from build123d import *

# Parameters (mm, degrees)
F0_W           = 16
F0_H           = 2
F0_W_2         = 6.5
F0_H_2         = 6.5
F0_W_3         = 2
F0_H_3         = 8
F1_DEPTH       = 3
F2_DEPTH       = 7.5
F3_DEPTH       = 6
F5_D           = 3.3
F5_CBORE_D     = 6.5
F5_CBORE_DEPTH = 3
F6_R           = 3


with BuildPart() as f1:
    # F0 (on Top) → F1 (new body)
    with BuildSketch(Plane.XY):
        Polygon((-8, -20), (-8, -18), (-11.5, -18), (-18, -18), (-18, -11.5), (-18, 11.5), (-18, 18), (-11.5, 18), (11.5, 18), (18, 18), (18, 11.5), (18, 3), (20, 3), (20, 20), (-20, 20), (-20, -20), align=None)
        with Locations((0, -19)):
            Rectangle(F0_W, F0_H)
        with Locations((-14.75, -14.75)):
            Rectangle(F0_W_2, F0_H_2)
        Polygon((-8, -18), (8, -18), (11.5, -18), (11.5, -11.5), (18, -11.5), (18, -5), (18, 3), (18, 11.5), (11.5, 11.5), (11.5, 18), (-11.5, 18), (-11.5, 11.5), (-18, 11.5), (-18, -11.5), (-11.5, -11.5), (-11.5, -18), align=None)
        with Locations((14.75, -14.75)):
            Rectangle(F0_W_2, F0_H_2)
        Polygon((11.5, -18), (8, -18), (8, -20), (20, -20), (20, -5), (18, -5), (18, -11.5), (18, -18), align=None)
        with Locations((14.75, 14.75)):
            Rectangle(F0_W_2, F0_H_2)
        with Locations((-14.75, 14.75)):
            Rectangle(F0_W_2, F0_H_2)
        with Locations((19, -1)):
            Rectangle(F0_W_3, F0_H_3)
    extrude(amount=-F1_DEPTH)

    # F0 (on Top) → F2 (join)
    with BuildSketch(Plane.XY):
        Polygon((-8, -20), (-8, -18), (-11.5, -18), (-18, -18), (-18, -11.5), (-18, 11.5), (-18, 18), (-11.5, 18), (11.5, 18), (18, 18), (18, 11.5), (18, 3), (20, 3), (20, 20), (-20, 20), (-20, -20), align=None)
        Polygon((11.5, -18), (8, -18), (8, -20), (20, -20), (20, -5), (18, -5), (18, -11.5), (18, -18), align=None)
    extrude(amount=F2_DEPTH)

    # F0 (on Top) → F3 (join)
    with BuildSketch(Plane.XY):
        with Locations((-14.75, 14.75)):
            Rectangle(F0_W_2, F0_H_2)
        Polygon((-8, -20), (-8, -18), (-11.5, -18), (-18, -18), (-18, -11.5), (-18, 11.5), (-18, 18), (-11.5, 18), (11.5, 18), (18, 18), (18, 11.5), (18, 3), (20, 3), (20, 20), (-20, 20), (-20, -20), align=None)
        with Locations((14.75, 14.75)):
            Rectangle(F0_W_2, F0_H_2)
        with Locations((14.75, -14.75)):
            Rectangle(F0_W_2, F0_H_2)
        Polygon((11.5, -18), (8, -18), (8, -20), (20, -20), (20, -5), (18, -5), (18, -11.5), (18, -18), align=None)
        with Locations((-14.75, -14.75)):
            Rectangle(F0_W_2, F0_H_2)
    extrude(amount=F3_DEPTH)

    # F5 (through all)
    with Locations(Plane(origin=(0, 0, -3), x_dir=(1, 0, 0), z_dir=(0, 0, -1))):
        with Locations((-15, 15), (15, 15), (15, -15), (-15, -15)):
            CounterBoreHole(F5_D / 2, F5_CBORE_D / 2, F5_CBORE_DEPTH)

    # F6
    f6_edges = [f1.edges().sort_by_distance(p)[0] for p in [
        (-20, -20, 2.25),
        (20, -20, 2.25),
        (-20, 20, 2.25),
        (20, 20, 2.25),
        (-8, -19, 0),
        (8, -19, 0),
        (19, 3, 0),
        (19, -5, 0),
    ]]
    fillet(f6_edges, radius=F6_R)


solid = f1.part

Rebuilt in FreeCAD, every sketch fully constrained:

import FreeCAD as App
import Part
import Sketcher


def edges_at(feature, points):
    """Names of the edges that pass closest to the given points."""
    edges = feature.Shape.Edges
    near = lambda p: min(range(len(edges)), key=lambda i: edges[i].distToShape(Part.Vertex(*p))[0])
    return sorted({f"Edge{near(p) + 1}" for p in points})


def add_polygon(sketch, points):
    """Adds a closed chain of lines whose ends are joined by coincident constraints."""
    first, n = sketch.GeometryCount, len(points)
    for a, b in zip(points, points[1:] + points[:1]):
        sketch.addGeometry(Part.LineSegment(App.Vector(*a, 0), App.Vector(*b, 0)), False)
    for i in range(n):
        sketch.addConstraint(Sketcher.Constraint("Coincident", first + i, 2, first + (i + 1) % n, 1))

doc = App.newDocument("Part")
body = doc.addObject("PartDesign::Body", "Body")

sketch1 = body.newObject("Sketcher::SketchObject", "Sketch")
sketch1.AttachmentSupport = (doc.getObject("XY_Plane"), [""])
sketch1.MapMode = "FlatFace"
add_polygon(sketch1, [(20, 20), (-20, 20), (-20, -20), (20, -20)])
sketch1.addConstraint([
    Sketcher.Constraint("Horizontal", 0),
    Sketcher.Constraint("Vertical", 1),
    Sketcher.Constraint("Horizontal", 2),
    Sketcher.Constraint("Vertical", 3),
    Sketcher.Constraint("Symmetric", 0, 2, 2, 2, -1, 1),
    Sketcher.Constraint("Equal", 2, 1),
    Sketcher.Constraint("DistanceX", 0, 2, 0, 1, 40.0),
])
pad1 = body.newObject("PartDesign::Pad", "Pad")
pad1.Profile = sketch1
pad1.Length = 3
pad1.Reversed = True

sketch2 = body.newObject("Sketcher::SketchObject", "Sketch001")
sketch2.AttachmentSupport = (doc.getObject("XY_Plane"), [""])
sketch2.MapMode = "FlatFace"
add_polygon(sketch2, [(-8, -20), (-8, -18), (-18, -18), (-18, 18), (18, 18), (18, 3), (20, 3), (20, 20), (-20, 20), (-20, -20)])
add_polygon(sketch2, [(8, -18), (8, -20), (20, -20), (20, -5), (18, -5), (18, -18)])
sketch2.addConstraint([
    Sketcher.Constraint("Vertical", 0),
    Sketcher.Constraint("Horizontal", 1),
    Sketcher.Constraint("Vertical", 2),
    Sketcher.Constraint("Horizontal", 3),
    Sketcher.Constraint("Vertical", 4),
    Sketcher.Constraint("Horizontal", 5),
    Sketcher.Constraint("Vertical", 6),
    Sketcher.Constraint("Horizontal", 7),
    Sketcher.Constraint("Vertical", 8),
    Sketcher.Constraint("Horizontal", 9),
    Sketcher.Constraint("Vertical", 10),
    Sketcher.Constraint("Horizontal", 11),
    Sketcher.Constraint("Vertical", 12),
    Sketcher.Constraint("Horizontal", 13),
    Sketcher.Constraint("Vertical", 14),
    Sketcher.Constraint("Horizontal", 15),
    Sketcher.Constraint("Symmetric", 1, 2, 3, 2, -1, 1),
    Sketcher.Constraint("Symmetric", 6, 2, 8, 2, -1, 1),
    Sketcher.Constraint("Symmetric", 7, 2, 11, 2, -1, 1),
    Sketcher.Constraint("Symmetric", 2, 2, 14, 2, -1, 1),
    Sketcher.Constraint("Equal", 9, 11),
    Sketcher.Constraint("Equal", 13, 0),
    Sketcher.Constraint("Equal", 3, 2),
    Sketcher.Constraint("Equal", 4, 12),
    Sketcher.Constraint("DistanceX", 1, 2, 1, 1, 10.0),
    Sketcher.Constraint("DistanceX", 3, 1, 3, 2, 36.0),
    Sketcher.Constraint("DistanceX", 5, 1, 5, 2, 2.0),
    Sketcher.Constraint("DistanceY", 4, 2, 4, 1, 15.0),
])
pad2 = body.newObject("PartDesign::Pad", "Pad001")
pad2.Profile = sketch2
pad2.Length = 7.5

sketch3 = body.newObject("Sketcher::SketchObject", "Sketch002")
sketch3.AttachmentSupport = (doc.getObject("XY_Plane"), [""])
sketch3.MapMode = "FlatFace"
add_polygon(sketch3, [(-18, 11.5), (-11.5, 11.5), (-11.5, 18), (11.5, 18), (11.5, 11.5), (18, 11.5), (18, 3), (20, 3), (20, 20), (-20, 20), (-20, -20), (-8, -20), (-8, -18), (-11.5, -18), (-11.5, -11.5), (-18, -11.5)])
add_polygon(sketch3, [(11.5, -11.5), (11.5, -18), (8, -18), (8, -20), (20, -20), (20, -5), (18, -5), (18, -11.5)])
sketch3.addConstraint([
    Sketcher.Constraint("Horizontal", 0),
    Sketcher.Constraint("Vertical", 1),
    Sketcher.Constraint("Horizontal", 2),
    Sketcher.Constraint("Vertical", 3),
    Sketcher.Constraint("Horizontal", 4),
    Sketcher.Constraint("Vertical", 5),
    Sketcher.Constraint("Horizontal", 6),
    Sketcher.Constraint("Vertical", 7),
    Sketcher.Constraint("Horizontal", 8),
    Sketcher.Constraint("Vertical", 9),
    Sketcher.Constraint("Horizontal", 10),
    Sketcher.Constraint("Vertical", 11),
    Sketcher.Constraint("Horizontal", 12),
    Sketcher.Constraint("Vertical", 13),
    Sketcher.Constraint("Horizontal", 14),
    Sketcher.Constraint("Vertical", 15),
    Sketcher.Constraint("Vertical", 16),
    Sketcher.Constraint("Horizontal", 17),
    Sketcher.Constraint("Vertical", 18),
    Sketcher.Constraint("Horizontal", 19),
    Sketcher.Constraint("Vertical", 20),
    Sketcher.Constraint("Horizontal", 21),
    Sketcher.Constraint("Vertical", 22),
    Sketcher.Constraint("Horizontal", 23),
    Sketcher.Constraint("Symmetric", 7, 2, 9, 2, -1, 1),
    Sketcher.Constraint("Symmetric", 2, 2, 12, 2, -1, 1),
    Sketcher.Constraint("Symmetric", 4, 2, 14, 2, -1, 1),
    Sketcher.Constraint("Symmetric", 1, 2, 16, 2, -1, 1),
    Sketcher.Constraint("Symmetric", 8, 2, 19, 2, -1, 1),
    Sketcher.Constraint("Symmetric", 15, 2, 22, 2, -1, 1),
    Sketcher.Constraint("Symmetric", 0, 2, 3, 2, -2),
    Sketcher.Constraint("Equal", 12, 17),
    Sketcher.Constraint("Equal", 23, 1),
    Sketcher.Constraint("Equal", 8, 9),
    Sketcher.Constraint("Equal", 21, 11),
    Sketcher.Constraint("Equal", 16, 22),
    Sketcher.Constraint("DistanceX", 2, 1, 2, 2, 23.0),
    Sketcher.Constraint("DistanceX", 6, 1, 6, 2, 2.0),
    Sketcher.Constraint("DistanceX", 8, 2, 8, 1, 40.0),
    Sketcher.Constraint("DistanceX", 10, 1, 10, 2, 12.0),
    Sketcher.Constraint("DistanceY", 7, 1, 7, 2, 17.0),
])
pad3 = body.newObject("PartDesign::Pad", "Pad002")
pad3.Profile = sketch3
pad3.Length = 6

sketch4 = body.newObject("Sketcher::SketchObject", "Sketch003")
sketch4.AttachmentSupport = (doc.getObject("XY_Plane"), [""])
sketch4.MapMode = "FlatFace"
sketch4.AttachmentOffset = App.Placement(App.Vector(0, 0, -3), App.Rotation())
sketch4.addGeometry([
    Part.Circle(App.Vector(-15, -15, 0), App.Vector(0, 0, 1), 1.65),
    Part.Circle(App.Vector(15, -15, 0), App.Vector(0, 0, 1), 1.65),
    Part.Circle(App.Vector(15, 15, 0), App.Vector(0, 0, 1), 1.65),
    Part.Circle(App.Vector(-15, 15, 0), App.Vector(0, 0, 1), 1.65),
], False)
sketch4.addConstraint([
    Sketcher.Constraint("Equal", 0, 1),
    Sketcher.Constraint("Equal", 1, 2),
    Sketcher.Constraint("Equal", 2, 3),
    Sketcher.Constraint("Symmetric", 0, 3, 2, 3, -1, 1),
    Sketcher.Constraint("Symmetric", 1, 3, 3, 3, -1, 1),
    Sketcher.Constraint("Symmetric", 0, 3, 1, 3, -2),
    Sketcher.Constraint("Diameter", 0, 3.3),
    Sketcher.Constraint("DistanceX", 0, 3, -1, 1, 15.0),
    Sketcher.Constraint("DistanceY", 0, 3, -1, 1, 15.0),
])
doc.recompute()
hole = body.newObject("PartDesign::Hole", "Hole")
hole.Profile = sketch4
hole.ThreadType = "None"
hole.Diameter = 3.3
hole.DepthType = "ThroughAll"
hole.HoleCutType = "Counterbore"
hole.HoleCutDiameter = 6.5
hole.HoleCutDepth = 3
hole.Reversed = True
doc.recompute()

fillet = body.newObject("PartDesign::Fillet", "Fillet")
fillet.Base = (hole, edges_at(hole, [
    (-20, -20, 2.25),
    (20, -20, 2.25),
    (-20, 20, 2.25),
    (20, 20, 2.25),
    (-8, -19, 0),
    (8, -19, 0),
    (19, 3, 0),
    (19, -5, 0),
]))
fillet.Radius = 3

doc.recompute()
